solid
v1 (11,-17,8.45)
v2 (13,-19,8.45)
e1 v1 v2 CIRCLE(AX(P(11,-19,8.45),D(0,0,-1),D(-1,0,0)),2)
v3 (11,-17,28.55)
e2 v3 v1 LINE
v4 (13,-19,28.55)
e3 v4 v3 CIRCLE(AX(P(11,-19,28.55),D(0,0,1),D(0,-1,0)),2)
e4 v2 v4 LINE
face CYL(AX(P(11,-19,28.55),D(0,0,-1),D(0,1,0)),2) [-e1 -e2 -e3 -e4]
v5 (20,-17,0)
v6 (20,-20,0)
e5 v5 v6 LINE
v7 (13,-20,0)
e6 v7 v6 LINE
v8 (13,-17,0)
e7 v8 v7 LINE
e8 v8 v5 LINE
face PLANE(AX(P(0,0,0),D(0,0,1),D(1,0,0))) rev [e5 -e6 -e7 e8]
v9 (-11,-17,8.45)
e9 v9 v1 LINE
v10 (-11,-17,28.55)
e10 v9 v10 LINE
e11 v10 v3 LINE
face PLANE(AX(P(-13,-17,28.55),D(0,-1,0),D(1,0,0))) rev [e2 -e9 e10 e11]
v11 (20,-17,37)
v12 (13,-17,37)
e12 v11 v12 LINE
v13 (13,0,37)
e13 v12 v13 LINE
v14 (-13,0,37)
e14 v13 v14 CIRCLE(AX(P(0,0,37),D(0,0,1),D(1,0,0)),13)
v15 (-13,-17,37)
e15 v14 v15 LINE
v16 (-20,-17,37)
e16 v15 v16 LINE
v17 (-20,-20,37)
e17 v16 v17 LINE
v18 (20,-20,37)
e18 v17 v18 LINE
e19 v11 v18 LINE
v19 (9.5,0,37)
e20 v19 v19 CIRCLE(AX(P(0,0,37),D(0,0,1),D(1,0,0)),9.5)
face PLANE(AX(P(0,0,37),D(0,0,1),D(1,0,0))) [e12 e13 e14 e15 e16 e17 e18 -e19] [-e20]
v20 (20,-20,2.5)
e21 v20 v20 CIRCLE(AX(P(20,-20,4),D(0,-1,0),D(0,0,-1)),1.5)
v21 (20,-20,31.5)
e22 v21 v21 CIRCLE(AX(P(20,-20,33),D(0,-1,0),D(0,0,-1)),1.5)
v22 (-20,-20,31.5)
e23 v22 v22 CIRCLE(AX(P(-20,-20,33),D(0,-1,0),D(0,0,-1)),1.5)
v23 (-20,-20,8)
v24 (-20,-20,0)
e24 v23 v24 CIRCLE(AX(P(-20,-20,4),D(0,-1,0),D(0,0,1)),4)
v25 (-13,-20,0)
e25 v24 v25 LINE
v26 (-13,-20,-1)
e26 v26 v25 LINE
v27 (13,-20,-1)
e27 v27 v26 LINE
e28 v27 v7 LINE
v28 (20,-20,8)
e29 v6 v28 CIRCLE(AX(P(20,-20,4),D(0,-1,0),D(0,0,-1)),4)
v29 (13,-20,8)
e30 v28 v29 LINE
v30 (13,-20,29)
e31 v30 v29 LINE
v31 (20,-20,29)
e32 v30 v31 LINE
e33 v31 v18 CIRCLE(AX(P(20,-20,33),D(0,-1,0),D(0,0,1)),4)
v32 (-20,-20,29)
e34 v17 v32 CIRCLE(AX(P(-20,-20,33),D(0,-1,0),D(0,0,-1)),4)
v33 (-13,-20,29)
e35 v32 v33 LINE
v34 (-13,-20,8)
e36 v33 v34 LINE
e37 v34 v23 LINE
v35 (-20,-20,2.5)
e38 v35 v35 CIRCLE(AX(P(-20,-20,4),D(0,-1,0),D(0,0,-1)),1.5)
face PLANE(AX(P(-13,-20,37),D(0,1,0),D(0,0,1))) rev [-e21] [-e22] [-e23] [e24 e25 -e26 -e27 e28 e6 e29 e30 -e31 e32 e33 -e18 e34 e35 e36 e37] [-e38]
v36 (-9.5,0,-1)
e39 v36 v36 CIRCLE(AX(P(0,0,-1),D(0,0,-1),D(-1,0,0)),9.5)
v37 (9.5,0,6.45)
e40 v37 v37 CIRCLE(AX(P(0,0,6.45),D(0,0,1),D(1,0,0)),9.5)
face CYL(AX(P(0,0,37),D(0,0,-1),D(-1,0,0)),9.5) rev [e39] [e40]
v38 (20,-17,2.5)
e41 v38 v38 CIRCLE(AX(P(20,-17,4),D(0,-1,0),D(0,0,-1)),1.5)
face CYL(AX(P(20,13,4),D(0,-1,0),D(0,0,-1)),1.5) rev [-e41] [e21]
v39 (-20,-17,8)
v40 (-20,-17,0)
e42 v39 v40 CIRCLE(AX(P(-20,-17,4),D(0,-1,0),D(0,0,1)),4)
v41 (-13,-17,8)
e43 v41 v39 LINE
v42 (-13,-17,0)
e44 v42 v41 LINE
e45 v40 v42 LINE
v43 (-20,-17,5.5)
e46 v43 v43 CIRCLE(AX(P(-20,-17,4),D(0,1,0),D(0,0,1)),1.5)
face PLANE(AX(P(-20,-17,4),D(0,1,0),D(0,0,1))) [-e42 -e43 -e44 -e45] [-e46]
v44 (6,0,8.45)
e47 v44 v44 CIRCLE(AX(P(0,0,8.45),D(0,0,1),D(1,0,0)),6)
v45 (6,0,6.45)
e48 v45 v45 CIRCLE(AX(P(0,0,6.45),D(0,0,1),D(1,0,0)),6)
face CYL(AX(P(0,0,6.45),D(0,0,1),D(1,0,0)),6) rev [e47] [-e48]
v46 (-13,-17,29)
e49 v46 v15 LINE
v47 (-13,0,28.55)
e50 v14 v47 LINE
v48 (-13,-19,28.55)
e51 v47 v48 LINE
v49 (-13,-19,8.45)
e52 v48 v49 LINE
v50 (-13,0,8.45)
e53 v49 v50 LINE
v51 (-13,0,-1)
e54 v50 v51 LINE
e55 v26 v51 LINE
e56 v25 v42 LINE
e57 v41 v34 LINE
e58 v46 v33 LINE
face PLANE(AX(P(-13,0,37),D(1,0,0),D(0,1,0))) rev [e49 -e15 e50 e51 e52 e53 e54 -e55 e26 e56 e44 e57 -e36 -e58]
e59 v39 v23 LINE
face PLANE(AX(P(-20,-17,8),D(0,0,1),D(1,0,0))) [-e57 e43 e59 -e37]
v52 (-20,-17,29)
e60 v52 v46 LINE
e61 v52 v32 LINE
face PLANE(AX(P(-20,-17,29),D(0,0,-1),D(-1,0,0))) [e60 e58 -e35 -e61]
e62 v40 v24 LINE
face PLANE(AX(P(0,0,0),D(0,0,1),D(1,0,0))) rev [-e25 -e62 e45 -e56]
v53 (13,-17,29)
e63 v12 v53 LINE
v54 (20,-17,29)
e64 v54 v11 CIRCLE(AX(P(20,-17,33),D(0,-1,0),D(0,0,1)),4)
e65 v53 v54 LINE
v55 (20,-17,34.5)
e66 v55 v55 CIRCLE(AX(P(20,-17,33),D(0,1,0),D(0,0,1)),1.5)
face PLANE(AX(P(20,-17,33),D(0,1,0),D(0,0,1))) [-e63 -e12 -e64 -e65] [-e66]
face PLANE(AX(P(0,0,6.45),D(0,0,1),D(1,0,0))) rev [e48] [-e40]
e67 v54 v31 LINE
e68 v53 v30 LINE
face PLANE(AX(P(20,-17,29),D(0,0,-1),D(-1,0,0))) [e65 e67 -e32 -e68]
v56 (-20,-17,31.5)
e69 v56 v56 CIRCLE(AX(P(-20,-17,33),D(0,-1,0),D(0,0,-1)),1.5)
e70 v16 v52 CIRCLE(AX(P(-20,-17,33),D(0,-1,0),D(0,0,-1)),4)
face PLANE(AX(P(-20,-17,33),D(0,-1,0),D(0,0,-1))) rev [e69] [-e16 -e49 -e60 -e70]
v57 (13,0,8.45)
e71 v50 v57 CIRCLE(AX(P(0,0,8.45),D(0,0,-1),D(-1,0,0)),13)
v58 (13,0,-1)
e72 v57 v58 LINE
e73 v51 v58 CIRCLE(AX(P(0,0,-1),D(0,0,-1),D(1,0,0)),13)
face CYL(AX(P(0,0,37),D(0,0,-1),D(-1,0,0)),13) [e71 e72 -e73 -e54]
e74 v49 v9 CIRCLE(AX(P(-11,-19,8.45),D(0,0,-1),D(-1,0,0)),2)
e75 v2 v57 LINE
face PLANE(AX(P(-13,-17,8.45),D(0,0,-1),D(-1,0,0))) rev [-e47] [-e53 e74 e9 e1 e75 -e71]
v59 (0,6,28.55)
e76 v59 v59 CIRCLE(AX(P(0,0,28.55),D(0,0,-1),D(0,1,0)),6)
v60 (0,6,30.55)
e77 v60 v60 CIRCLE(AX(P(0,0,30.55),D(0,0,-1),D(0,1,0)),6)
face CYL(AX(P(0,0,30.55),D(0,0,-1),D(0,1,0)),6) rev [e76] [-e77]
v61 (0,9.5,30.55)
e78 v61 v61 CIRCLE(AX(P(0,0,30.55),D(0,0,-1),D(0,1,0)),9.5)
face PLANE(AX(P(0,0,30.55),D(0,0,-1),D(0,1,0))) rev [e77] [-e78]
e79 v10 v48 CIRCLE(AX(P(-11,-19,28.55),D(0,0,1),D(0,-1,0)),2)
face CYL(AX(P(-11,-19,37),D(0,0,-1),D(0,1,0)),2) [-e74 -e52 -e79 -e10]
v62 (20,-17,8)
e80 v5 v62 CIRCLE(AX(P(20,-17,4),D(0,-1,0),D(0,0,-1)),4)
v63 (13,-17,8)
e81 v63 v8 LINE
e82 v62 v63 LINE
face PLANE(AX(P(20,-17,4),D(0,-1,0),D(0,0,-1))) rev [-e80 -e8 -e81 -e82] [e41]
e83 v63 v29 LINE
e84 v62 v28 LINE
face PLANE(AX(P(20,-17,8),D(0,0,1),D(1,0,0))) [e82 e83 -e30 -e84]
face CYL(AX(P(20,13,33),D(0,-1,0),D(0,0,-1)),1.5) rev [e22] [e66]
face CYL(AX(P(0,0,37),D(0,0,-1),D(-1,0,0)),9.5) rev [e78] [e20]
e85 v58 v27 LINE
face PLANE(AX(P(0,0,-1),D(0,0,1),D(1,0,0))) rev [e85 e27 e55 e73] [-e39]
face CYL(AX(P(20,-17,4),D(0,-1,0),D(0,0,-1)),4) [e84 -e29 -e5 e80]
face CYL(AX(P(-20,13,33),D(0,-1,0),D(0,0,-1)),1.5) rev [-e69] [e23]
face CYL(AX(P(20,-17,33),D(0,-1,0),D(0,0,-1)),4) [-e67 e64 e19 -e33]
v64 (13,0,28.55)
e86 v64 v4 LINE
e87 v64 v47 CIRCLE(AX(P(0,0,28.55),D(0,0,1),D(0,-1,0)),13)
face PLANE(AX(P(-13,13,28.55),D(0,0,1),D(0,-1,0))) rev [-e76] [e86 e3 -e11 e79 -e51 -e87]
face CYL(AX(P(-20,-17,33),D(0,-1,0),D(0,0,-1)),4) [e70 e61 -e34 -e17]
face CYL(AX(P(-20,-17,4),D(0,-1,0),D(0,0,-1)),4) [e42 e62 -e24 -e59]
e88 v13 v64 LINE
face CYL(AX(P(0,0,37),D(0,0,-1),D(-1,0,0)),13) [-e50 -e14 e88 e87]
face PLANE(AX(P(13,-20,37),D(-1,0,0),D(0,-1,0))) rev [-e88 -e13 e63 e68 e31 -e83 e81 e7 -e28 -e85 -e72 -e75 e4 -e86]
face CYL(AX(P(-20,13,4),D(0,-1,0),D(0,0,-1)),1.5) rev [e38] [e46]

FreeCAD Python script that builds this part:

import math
import FreeCAD as App
import Part
import Sketcher
from FreeCAD import Vector
Q = App.Units.Quantity


def edges_at(feature, points):
    """Names of the edges that pass closest to the given points."""
    edges = feature.Shape.Edges
    near = lambda p: min(range(len(edges)), key=lambda i: edges[i].distToShape(Part.Vertex(*p))[0])
    return sorted({f"Edge{near(p) + 1}" for p in points})

doc = App.newDocument("Part")
body = doc.addObject("PartDesign::Body", "Body")

# Sketch on XY plane
sketch1 = doc.addObject("Sketcher::SketchObject", "Sketch")
body.addObject(sketch1)
sketch1.AttachmentSupport = (doc.XY_Plane, [""])
sketch1.MapMode = "FlatFace"
sketch1.addGeometry(Part.LineSegment(Vector(-13, 0, 0), Vector(-13, -20, 0)), False)
sketch1.addGeometry(Part.LineSegment(Vector(-13, -20, 0), Vector(13, -20, 0)), False)
sketch1.addGeometry(Part.LineSegment(Vector(13, -20, 0), Vector(13, 0, 0)), False)
sketch1.addGeometry(Part.ArcOfCircle(Part.Circle(Vector(0, 0, 0), Vector(0, 0, 1), 13), math.radians(0), math.radians(180)), False)
sketch1.addGeometry(Part.Circle(Vector(0, 0, 0), Vector(0, 0, 1), 9.5), False)
sketch1.addConstraint(Sketcher.Constraint("Coincident", 0, 2, 1, 1))
sketch1.addConstraint(Sketcher.Constraint("Coincident", 1, 2, 2, 1))
sketch1.addConstraint(Sketcher.Constraint("Tangent", 2, 2, 3, 1))
sketch1.addConstraint(Sketcher.Constraint("Tangent", 3, 2, 0, 1))
sketch1.addConstraint(Sketcher.Constraint("Vertical", 0))
sketch1.addConstraint(Sketcher.Constraint("Horizontal", 1))
sketch1.addConstraint(Sketcher.Constraint("Vertical", 2))
sketch1.addConstraint(Sketcher.Constraint("Coincident", 3, 3, -1, 1))
sketch1.addConstraint(Sketcher.Constraint("Coincident", 4, 3, -1, 1))
sketch1.addConstraint(Sketcher.Constraint("Diameter", 4, Q("19 mm")))
sketch1.addConstraint(Sketcher.Constraint("Radius", 3, Q("13 mm")))
sketch1.addConstraint(Sketcher.Constraint("DistanceY", 0, 2, 0, 1, Q("20 mm")))
pad1 = doc.addObject("PartDesign::Pad", "Pad")
body.addObject(pad1)
pad1.Profile = sketch1
pad1.Length = 37

# Sketch on YZ plane
sketch2 = doc.addObject("Sketcher::SketchObject", "Sketch001")
body.addObject(sketch2)
sketch2.AttachmentSupport = (doc.YZ_Plane, [""])
sketch2.MapMode = "FlatFace"
sketch2.AttachmentOffset = App.Placement(Vector(0, 0, 13), App.Rotation())
sketch2.addGeometry(Part.LineSegment(Vector(13, 28.55, 0), Vector(-17, 28.55, 0)), False)
sketch2.addGeometry(Part.LineSegment(Vector(-17, 28.55, 0), Vector(-17, 8.45, 0)), False)
sketch2.addGeometry(Part.LineSegment(Vector(-17, 8.45, 0), Vector(13, 8.45, 0)), False)
sketch2.addGeometry(Part.LineSegment(Vector(13, 8.45, 0), Vector(13, 28.55, 0)), False)
sketch2.addConstraint(Sketcher.Constraint("Coincident", 0, 2, 1, 1))
sketch2.addConstraint(Sketcher.Constraint("Coincident", 1, 2, 2, 1))
sketch2.addConstraint(Sketcher.Constraint("Coincident", 2, 2, 3, 1))
sketch2.addConstraint(Sketcher.Constraint("Coincident", 3, 2, 0, 1))
sketch2.addConstraint(Sketcher.Constraint("Horizontal", 0))
sketch2.addConstraint(Sketcher.Constraint("Vertical", 1))
sketch2.addConstraint(Sketcher.Constraint("Horizontal", 2))
sketch2.addConstraint(Sketcher.Constraint("Vertical", 3))
sketch2.addConstraint(Sketcher.Constraint("DistanceX", 0, 2, 0, 1, Q("30 mm")))
sketch2.addConstraint(Sketcher.Constraint("DistanceY", 1, 2, 1, 1, Q("20.1 mm")))
sketch2.addConstraint(Sketcher.Constraint("DistanceX", 0, 2, -1, 1, Q("17 mm")))
sketch2.addConstraint(Sketcher.Constraint("DistanceY", -1, 1, 0, 2, Q("28.55 mm")))
pocket1 = doc.addObject("PartDesign::Pocket", "Pocket")
body.addObject(pocket1)
pocket1.Profile = sketch2
pocket1.Type = "ThroughAll"

# Sketch on XY plane
sketch3 = doc.addObject("Sketcher::SketchObject", "Sketch002")
body.addObject(sketch3)
sketch3.AttachmentSupport = (doc.XY_Plane, [""])
sketch3.MapMode = "FlatFace"
sketch3.AttachmentOffset = App.Placement(Vector(0, 0, 28.55), App.Rotation())
sketch3.addGeometry(Part.Circle(Vector(0, 0, 0), Vector(0, 0, 1), 9.5), False)
sketch3.addGeometry(Part.Circle(Vector(0, 0, 0), Vector(0, 0, 1), 6), False)
sketch3.addConstraint(Sketcher.Constraint("Coincident", 0, 3, -1, 1))
sketch3.addConstraint(Sketcher.Constraint("Coincident", 1, 3, -1, 1))
sketch3.addConstraint(Sketcher.Constraint("Diameter", 0, Q("19 mm")))
sketch3.addConstraint(Sketcher.Constraint("Diameter", 1, Q("12 mm")))
pad2 = doc.addObject("PartDesign::Pad", "Pad001")
body.addObject(pad2)
pad2.Profile = sketch3
pad2.Length = 2

# Sketch on XY plane
sketch4 = doc.addObject("Sketcher::SketchObject", "Sketch003")
body.addObject(sketch4)
sketch4.AttachmentSupport = (doc.XY_Plane, [""])
sketch4.MapMode = "FlatFace"
sketch4.AttachmentOffset = App.Placement(Vector(0, 0, 6.45), App.Rotation())
sketch4.addGeometry(Part.Circle(Vector(0, 0, 0), Vector(0, 0, 1), 9.5), False)
sketch4.addGeometry(Part.Circle(Vector(0, 0, 0), Vector(0, 0, 1), 6), False)
sketch4.addConstraint(Sketcher.Constraint("Coincident", 0, 3, -1, 1))
sketch4.addConstraint(Sketcher.Constraint("Coincident", 1, 3, -1, 1))
sketch4.addConstraint(Sketcher.Constraint("Diameter", 0, Q("19 mm")))
sketch4.addConstraint(Sketcher.Constraint("Diameter", 1, Q("12 mm")))
pad3 = doc.addObject("PartDesign::Pad", "Pad002")
body.addObject(pad3)
pad3.Profile = sketch4
pad3.Length = 2

# Sketch on XZ plane
sketch5 = doc.addObject("Sketcher::SketchObject", "Sketch004")
body.addObject(sketch5)
sketch5.AttachmentSupport = (doc.XZ_Plane, [""])
sketch5.MapMode = "FlatFace"
sketch5.AttachmentOffset = App.Placement(Vector(0, 0, 20), App.Rotation())
sketch5.addGeometry(Part.LineSegment(Vector(20, 37, 0), Vector(13, 37, 0)), False)
sketch5.addGeometry(Part.LineSegment(Vector(13, 37, 0), Vector(13, 29, 0)), False)
sketch5.addGeometry(Part.LineSegment(Vector(13, 29, 0), Vector(20, 29, 0)), False)
sketch5.addGeometry(Part.ArcOfCircle(Part.Circle(Vector(20, 33, 0), Vector(0, 0, 1), 4), math.radians(-90), math.radians(90)), False)
sketch5.addGeometry(Part.LineSegment(Vector(13, 0, 0), Vector(20, 0, 0)), False)
sketch5.addGeometry(Part.ArcOfCircle(Part.Circle(Vector(20, 4, 0), Vector(0, 0, 1), 4), math.radians(-90), math.radians(90)), False)
sketch5.addGeometry(Part.LineSegment(Vector(20, 8, 0), Vector(13, 8, 0)), False)
sketch5.addGeometry(Part.LineSegment(Vector(13, 8, 0), Vector(13, 0, 0)), False)
sketch5.addGeometry(Part.LineSegment(Vector(-20, 0, 0), Vector(-13, 0, 0)), False)
sketch5.addGeometry(Part.LineSegment(Vector(-13, 0, 0), Vector(-13, 8, 0)), False)
sketch5.addGeometry(Part.LineSegment(Vector(-13, 8, 0), Vector(-20, 8, 0)), False)
sketch5.addGeometry(Part.ArcOfCircle(Part.Circle(Vector(-20, 4, 0), Vector(0, 0, 1), 4), math.radians(90), math.radians(270)), False)
sketch5.addGeometry(Part.LineSegment(Vector(-13, 29, 0), Vector(-13, 37, 0)), False)
sketch5.addGeometry(Part.LineSegment(Vector(-13, 37, 0), Vector(-20, 37, 0)), False)
sketch5.addGeometry(Part.ArcOfCircle(Part.Circle(Vector(-20, 33, 0), Vector(0, 0, 1), 4), math.radians(90), math.radians(270)), False)
sketch5.addGeometry(Part.LineSegment(Vector(-20, 29, 0), Vector(-13, 29, 0)), False)
sketch5.addConstraint(Sketcher.Constraint("Coincident", 0, 2, 1, 1))
sketch5.addConstraint(Sketcher.Constraint("Coincident", 1, 2, 2, 1))
sketch5.addConstraint(Sketcher.Constraint("Tangent", 2, 2, 3, 1))
sketch5.addConstraint(Sketcher.Constraint("Tangent", 3, 2, 0, 1))
sketch5.addConstraint(Sketcher.Constraint("Tangent", 4, 2, 5, 1))
sketch5.addConstraint(Sketcher.Constraint("Tangent", 5, 2, 6, 1))
sketch5.addConstraint(Sketcher.Constraint("Coincident", 6, 2, 7, 1))
sketch5.addConstraint(Sketcher.Constraint("Coincident", 7, 2, 4, 1))
sketch5.addConstraint(Sketcher.Constraint("Coincident", 8, 2, 9, 1))
sketch5.addConstraint(Sketcher.Constraint("Coincident", 9, 2, 10, 1))
sketch5.addConstraint(Sketcher.Constraint("Tangent", 10, 2, 11, 1))
sketch5.addConstraint(Sketcher.Constraint("Tangent", 11, 2, 8, 1))
sketch5.addConstraint(Sketcher.Constraint("Coincident", 12, 2, 13, 1))
sketch5.addConstraint(Sketcher.Constraint("Tangent", 13, 2, 14, 1))
sketch5.addConstraint(Sketcher.Constraint("Tangent", 14, 2, 15, 1))
sketch5.addConstraint(Sketcher.Constraint("Coincident", 15, 2, 12, 1))
sketch5.addConstraint(Sketcher.Constraint("Horizontal", 0))
sketch5.addConstraint(Sketcher.Constraint("Vertical", 1))
sketch5.addConstraint(Sketcher.Constraint("Horizontal", 2))
sketch5.addConstraint(Sketcher.Constraint("Horizontal", 4))
sketch5.addConstraint(Sketcher.Constraint("Horizontal", 6))
sketch5.addConstraint(Sketcher.Constraint("Vertical", 7))
sketch5.addConstraint(Sketcher.Constraint("Horizontal", 8))
sketch5.addConstraint(Sketcher.Constraint("Vertical", 9))
sketch5.addConstraint(Sketcher.Constraint("Horizontal", 10))
sketch5.addConstraint(Sketcher.Constraint("Vertical", 12))
sketch5.addConstraint(Sketcher.Constraint("Horizontal", 13))
sketch5.addConstraint(Sketcher.Constraint("Horizontal", 15))
sketch5.addConstraint(Sketcher.Constraint("Equal", 3, 5))
sketch5.addConstraint(Sketcher.Constraint("Equal", 5, 11))
sketch5.addConstraint(Sketcher.Constraint("Equal", 11, 14))
sketch5.addConstraint(Sketcher.Constraint("Symmetric", 7, 2, 8, 2, -1, 1))
sketch5.addConstraint(Sketcher.Constraint("Symmetric", 5, 3, 11, 3, -2))
sketch5.addConstraint(Sketcher.Constraint("Symmetric", 3, 3, 14, 3, -2))
sketch5.addConstraint(Sketcher.Constraint("Vertical", 3, 3, 5, 3))
sketch5.addConstraint(Sketcher.Constraint("Vertical", 1, 2, 6, 2))
sketch5.addConstraint(Sketcher.Constraint("Vertical", 9, 2, 12, 2))
sketch5.addConstraint(Sketcher.Constraint("Radius", 3, Q("4 mm")))
sketch5.addConstraint(Sketcher.Constraint("DistanceX", 0, 2, 0, 1, Q("7 mm")))
sketch5.addConstraint(Sketcher.Constraint("DistanceX", -1, 1, 3, 3, Q("20 mm")))
sketch5.addConstraint(Sketcher.Constraint("DistanceY", -1, 1, 3, 3, Q("33 mm")))
pad4 = doc.addObject("PartDesign::Pad", "Pad003")
body.addObject(pad4)
pad4.Profile = sketch5
pad4.Length = 3
pad4.Reversed = True

# Sketch on XZ plane
sketch6 = doc.addObject("Sketcher::SketchObject", "Sketch005")
body.addObject(sketch6)
sketch6.AttachmentSupport = (doc.XZ_Plane, [""])
sketch6.MapMode = "FlatFace"
sketch6.AttachmentOffset = App.Placement(Vector(0, 0, 20), App.Rotation())
sketch6.addGeometry(Part.Circle(Vector(-20, 33, 0), Vector(0, 0, 1), 1.5), False)
sketch6.addGeometry(Part.Circle(Vector(20, 33, 0), Vector(0, 0, 1), 1.5), False)
sketch6.addGeometry(Part.Circle(Vector(-20, 4, 0), Vector(0, 0, 1), 1.5), False)
sketch6.addGeometry(Part.Circle(Vector(20, 4, 0), Vector(0, 0, 1), 1.5), False)
sketch6.addConstraint(Sketcher.Constraint("Equal", 0, 1))
sketch6.addConstraint(Sketcher.Constraint("Equal", 1, 2))
sketch6.addConstraint(Sketcher.Constraint("Equal", 2, 3))
sketch6.addConstraint(Sketcher.Constraint("Symmetric", 0, 3, 1, 3, -2))
sketch6.addConstraint(Sketcher.Constraint("Symmetric", 2, 3, 3, 3, -2))
sketch6.addConstraint(Sketcher.Constraint("Vertical", 0, 3, 2, 3))
sketch6.addConstraint(Sketcher.Constraint("Diameter", 0, Q("3 mm")))
sketch6.addConstraint(Sketcher.Constraint("DistanceX", 0, 3, -1, 1, Q("20 mm")))
sketch6.addConstraint(Sketcher.Constraint("DistanceY", -1, 1, 0, 3, Q("33 mm")))
sketch6.addConstraint(Sketcher.Constraint("DistanceY", -1, 1, 2, 3, Q("4 mm")))
pocket2 = doc.addObject("PartDesign::Pocket", "Pocket001")
body.addObject(pocket2)
pocket2.Profile = sketch6
pocket2.Type = "ThroughAll"
doc.recompute()

fillet = doc.addObject("PartDesign::Fillet", "Fillet")
body.addObject(fillet)
fillet.Base = (pocket2, edges_at(pocket2, [(-13, -17, 18.5), (13, -17, 18.5)]))
fillet.Radius = 2

# Sketch on XY plane
sketch7 = doc.addObject("Sketcher::SketchObject", "Sketch006")
body.addObject(sketch7)
sketch7.AttachmentSupport = (doc.XY_Plane, [""])
sketch7.MapMode = "FlatFace"
sketch7.AttachmentOffset = App.Placement(Vector(0, 0, -1), App.Rotation())
sketch7.addGeometry(Part.ArcOfCircle(Part.Circle(Vector(0, 0, 0), Vector(0, 0, 1), 13), math.radians(0), math.radians(180)), False)
sketch7.addGeometry(Part.LineSegment(Vector(13, 0, 0), Vector(13, -20, 0)), False)
sketch7.addGeometry(Part.LineSegment(Vector(13, -20, 0), Vector(-13, -20, 0)), False)
sketch7.addGeometry(Part.LineSegment(Vector(-13, -20, 0), Vector(-13, 0, 0)), False)
sketch7.addGeometry(Part.Circle(Vector(0, 0, 0), Vector(0, 0, 1), 9.5), False)
sketch7.addConstraint(Sketcher.Constraint("Tangent", 0, 1, 1, 1))
sketch7.addConstraint(Sketcher.Constraint("Coincident", 1, 2, 2, 1))
sketch7.addConstraint(Sketcher.Constraint("Coincident", 2, 2, 3, 1))
sketch7.addConstraint(Sketcher.Constraint("Tangent", 3, 2, 0, 2))
sketch7.addConstraint(Sketcher.Constraint("Vertical", 1))
sketch7.addConstraint(Sketcher.Constraint("Horizontal", 2))
sketch7.addConstraint(Sketcher.Constraint("Vertical", 3))
sketch7.addConstraint(Sketcher.Constraint("Coincident", 0, 3, -1, 1))
sketch7.addConstraint(Sketcher.Constraint("Coincident", 4, 3, -1, 1))
sketch7.addConstraint(Sketcher.Constraint("Diameter", 4, Q("19 mm")))
sketch7.addConstraint(Sketcher.Constraint("Radius", 0, Q("13 mm")))
sketch7.addConstraint(Sketcher.Constraint("DistanceY", 1, 2, 1, 1, Q("20 mm")))
pad5 = doc.addObject("PartDesign::Pad", "Pad004")
body.addObject(pad5)
pad5.Profile = sketch7
pad5.Length = 1

doc.recompute()
